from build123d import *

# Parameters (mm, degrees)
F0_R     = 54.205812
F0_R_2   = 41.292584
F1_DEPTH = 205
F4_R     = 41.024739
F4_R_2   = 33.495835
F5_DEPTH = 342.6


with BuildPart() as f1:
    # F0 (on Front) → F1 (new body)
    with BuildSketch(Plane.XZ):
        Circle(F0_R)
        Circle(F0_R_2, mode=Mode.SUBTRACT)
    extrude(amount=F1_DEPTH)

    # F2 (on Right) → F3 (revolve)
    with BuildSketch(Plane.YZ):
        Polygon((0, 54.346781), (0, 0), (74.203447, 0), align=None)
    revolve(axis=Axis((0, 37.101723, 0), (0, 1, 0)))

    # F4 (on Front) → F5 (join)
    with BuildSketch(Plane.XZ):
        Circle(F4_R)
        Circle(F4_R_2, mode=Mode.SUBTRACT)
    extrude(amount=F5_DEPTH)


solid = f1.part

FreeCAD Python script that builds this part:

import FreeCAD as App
import Part
import Sketcher

V = App.Vector

doc = App.newDocument("Part")
body = doc.addObject("PartDesign::Body", "Body")

# Sketch on XZ plane
sketch1 = body.newObject("Sketcher::SketchObject", "Sketch")
sketch1.AttachmentSupport = (doc.getObject("XZ_Plane"), [""])
sketch1.MapMode = "FlatFace"
sketch1.addGeometry(Part.Circle(V(0, 0, 0), V(0, 0, 1), 54), False)
sketch1.addGeometry(Part.Circle(V(0, 0, 0), V(0, 0, 1), 41), False)
sketch1.addConstraint(Sketcher.Constraint("Coincident", 0, 3, -1, 1))
sketch1.addConstraint(Sketcher.Constraint("Coincident", 1, 3, -1, 1))
sketch1.addConstraint(Sketcher.Constraint("Diameter", 0, 108.411624))
sketch1.addConstraint(Sketcher.Constraint("Diameter", 1, 82.585168))
pad1 = body.newObject("PartDesign::Pad", "Pad")
pad1.Profile = sketch1
pad1.Length = 205

# Sketch on YZ plane
sketch2 = body.newObject("Sketcher::SketchObject", "Sketch001")
sketch2.AttachmentSupport = (doc.getObject("YZ_Plane"), [""])
sketch2.MapMode = "FlatFace"
sketch2.addGeometry(Part.LineSegment(V(0, 54, 0), V(0, 0, 0)), False)
sketch2.addGeometry(Part.LineSegment(V(0, 0, 0), V(74, 0, 0)), False)
sketch2.addGeometry(Part.LineSegment(V(74, 0, 0), V(0, 54, 0)), False)
sketch2.addConstraint(Sketcher.Constraint("Coincident", 0, 2, 1, 1))
sketch2.addConstraint(Sketcher.Constraint("Coincident", 1, 2, 2, 1))
sketch2.addConstraint(Sketcher.Constraint("Coincident", 2, 2, 0, 1))
sketch2.addConstraint(Sketcher.Constraint("Vertical", 0))
sketch2.addConstraint(Sketcher.Constraint("Horizontal", 1))
sketch2.addConstraint(Sketcher.Constraint("Coincident", 0, 2, -1, 1))
sketch2.addConstraint(Sketcher.Constraint("DistanceY", 0, 2, 0, 1, 54.346781))
sketch2.addConstraint(Sketcher.Constraint("Distance", 2, 91.976759))
revolution = body.newObject("PartDesign::Revolution", "Revolution")
revolution.Profile = sketch2
revolution.ReferenceAxis = (sketch2, ["H_Axis"])
revolution.Angle = 360

# Sketch on XZ plane
sketch3 = body.newObject("Sketcher::SketchObject", "Sketch002")
sketch3.AttachmentSupport = (doc.getObject("XZ_Plane"), [""])
sketch3.MapMode = "FlatFace"
sketch3.addGeometry(Part.Circle(V(0, 0, 0), V(0, 0, 1), 41), False)
sketch3.addGeometry(Part.Circle(V(0, 0, 0), V(0, 0, 1), 33), False)
sketch3.addConstraint(Sketcher.Constraint("Coincident", 0, 3, -1, 1))
sketch3.addConstraint(Sketcher.Constraint("Coincident", 1, 3, -1, 1))
sketch3.addConstraint(Sketcher.Constraint("Diameter", 1, 66.99167))
sketch3.addConstraint(Sketcher.Constraint("Diameter", 0, 82.049478))
pad2 = body.newObject("PartDesign::Pad", "Pad001")
pad2.Profile = sketch3
pad2.Length = 342.6

doc.recompute()
